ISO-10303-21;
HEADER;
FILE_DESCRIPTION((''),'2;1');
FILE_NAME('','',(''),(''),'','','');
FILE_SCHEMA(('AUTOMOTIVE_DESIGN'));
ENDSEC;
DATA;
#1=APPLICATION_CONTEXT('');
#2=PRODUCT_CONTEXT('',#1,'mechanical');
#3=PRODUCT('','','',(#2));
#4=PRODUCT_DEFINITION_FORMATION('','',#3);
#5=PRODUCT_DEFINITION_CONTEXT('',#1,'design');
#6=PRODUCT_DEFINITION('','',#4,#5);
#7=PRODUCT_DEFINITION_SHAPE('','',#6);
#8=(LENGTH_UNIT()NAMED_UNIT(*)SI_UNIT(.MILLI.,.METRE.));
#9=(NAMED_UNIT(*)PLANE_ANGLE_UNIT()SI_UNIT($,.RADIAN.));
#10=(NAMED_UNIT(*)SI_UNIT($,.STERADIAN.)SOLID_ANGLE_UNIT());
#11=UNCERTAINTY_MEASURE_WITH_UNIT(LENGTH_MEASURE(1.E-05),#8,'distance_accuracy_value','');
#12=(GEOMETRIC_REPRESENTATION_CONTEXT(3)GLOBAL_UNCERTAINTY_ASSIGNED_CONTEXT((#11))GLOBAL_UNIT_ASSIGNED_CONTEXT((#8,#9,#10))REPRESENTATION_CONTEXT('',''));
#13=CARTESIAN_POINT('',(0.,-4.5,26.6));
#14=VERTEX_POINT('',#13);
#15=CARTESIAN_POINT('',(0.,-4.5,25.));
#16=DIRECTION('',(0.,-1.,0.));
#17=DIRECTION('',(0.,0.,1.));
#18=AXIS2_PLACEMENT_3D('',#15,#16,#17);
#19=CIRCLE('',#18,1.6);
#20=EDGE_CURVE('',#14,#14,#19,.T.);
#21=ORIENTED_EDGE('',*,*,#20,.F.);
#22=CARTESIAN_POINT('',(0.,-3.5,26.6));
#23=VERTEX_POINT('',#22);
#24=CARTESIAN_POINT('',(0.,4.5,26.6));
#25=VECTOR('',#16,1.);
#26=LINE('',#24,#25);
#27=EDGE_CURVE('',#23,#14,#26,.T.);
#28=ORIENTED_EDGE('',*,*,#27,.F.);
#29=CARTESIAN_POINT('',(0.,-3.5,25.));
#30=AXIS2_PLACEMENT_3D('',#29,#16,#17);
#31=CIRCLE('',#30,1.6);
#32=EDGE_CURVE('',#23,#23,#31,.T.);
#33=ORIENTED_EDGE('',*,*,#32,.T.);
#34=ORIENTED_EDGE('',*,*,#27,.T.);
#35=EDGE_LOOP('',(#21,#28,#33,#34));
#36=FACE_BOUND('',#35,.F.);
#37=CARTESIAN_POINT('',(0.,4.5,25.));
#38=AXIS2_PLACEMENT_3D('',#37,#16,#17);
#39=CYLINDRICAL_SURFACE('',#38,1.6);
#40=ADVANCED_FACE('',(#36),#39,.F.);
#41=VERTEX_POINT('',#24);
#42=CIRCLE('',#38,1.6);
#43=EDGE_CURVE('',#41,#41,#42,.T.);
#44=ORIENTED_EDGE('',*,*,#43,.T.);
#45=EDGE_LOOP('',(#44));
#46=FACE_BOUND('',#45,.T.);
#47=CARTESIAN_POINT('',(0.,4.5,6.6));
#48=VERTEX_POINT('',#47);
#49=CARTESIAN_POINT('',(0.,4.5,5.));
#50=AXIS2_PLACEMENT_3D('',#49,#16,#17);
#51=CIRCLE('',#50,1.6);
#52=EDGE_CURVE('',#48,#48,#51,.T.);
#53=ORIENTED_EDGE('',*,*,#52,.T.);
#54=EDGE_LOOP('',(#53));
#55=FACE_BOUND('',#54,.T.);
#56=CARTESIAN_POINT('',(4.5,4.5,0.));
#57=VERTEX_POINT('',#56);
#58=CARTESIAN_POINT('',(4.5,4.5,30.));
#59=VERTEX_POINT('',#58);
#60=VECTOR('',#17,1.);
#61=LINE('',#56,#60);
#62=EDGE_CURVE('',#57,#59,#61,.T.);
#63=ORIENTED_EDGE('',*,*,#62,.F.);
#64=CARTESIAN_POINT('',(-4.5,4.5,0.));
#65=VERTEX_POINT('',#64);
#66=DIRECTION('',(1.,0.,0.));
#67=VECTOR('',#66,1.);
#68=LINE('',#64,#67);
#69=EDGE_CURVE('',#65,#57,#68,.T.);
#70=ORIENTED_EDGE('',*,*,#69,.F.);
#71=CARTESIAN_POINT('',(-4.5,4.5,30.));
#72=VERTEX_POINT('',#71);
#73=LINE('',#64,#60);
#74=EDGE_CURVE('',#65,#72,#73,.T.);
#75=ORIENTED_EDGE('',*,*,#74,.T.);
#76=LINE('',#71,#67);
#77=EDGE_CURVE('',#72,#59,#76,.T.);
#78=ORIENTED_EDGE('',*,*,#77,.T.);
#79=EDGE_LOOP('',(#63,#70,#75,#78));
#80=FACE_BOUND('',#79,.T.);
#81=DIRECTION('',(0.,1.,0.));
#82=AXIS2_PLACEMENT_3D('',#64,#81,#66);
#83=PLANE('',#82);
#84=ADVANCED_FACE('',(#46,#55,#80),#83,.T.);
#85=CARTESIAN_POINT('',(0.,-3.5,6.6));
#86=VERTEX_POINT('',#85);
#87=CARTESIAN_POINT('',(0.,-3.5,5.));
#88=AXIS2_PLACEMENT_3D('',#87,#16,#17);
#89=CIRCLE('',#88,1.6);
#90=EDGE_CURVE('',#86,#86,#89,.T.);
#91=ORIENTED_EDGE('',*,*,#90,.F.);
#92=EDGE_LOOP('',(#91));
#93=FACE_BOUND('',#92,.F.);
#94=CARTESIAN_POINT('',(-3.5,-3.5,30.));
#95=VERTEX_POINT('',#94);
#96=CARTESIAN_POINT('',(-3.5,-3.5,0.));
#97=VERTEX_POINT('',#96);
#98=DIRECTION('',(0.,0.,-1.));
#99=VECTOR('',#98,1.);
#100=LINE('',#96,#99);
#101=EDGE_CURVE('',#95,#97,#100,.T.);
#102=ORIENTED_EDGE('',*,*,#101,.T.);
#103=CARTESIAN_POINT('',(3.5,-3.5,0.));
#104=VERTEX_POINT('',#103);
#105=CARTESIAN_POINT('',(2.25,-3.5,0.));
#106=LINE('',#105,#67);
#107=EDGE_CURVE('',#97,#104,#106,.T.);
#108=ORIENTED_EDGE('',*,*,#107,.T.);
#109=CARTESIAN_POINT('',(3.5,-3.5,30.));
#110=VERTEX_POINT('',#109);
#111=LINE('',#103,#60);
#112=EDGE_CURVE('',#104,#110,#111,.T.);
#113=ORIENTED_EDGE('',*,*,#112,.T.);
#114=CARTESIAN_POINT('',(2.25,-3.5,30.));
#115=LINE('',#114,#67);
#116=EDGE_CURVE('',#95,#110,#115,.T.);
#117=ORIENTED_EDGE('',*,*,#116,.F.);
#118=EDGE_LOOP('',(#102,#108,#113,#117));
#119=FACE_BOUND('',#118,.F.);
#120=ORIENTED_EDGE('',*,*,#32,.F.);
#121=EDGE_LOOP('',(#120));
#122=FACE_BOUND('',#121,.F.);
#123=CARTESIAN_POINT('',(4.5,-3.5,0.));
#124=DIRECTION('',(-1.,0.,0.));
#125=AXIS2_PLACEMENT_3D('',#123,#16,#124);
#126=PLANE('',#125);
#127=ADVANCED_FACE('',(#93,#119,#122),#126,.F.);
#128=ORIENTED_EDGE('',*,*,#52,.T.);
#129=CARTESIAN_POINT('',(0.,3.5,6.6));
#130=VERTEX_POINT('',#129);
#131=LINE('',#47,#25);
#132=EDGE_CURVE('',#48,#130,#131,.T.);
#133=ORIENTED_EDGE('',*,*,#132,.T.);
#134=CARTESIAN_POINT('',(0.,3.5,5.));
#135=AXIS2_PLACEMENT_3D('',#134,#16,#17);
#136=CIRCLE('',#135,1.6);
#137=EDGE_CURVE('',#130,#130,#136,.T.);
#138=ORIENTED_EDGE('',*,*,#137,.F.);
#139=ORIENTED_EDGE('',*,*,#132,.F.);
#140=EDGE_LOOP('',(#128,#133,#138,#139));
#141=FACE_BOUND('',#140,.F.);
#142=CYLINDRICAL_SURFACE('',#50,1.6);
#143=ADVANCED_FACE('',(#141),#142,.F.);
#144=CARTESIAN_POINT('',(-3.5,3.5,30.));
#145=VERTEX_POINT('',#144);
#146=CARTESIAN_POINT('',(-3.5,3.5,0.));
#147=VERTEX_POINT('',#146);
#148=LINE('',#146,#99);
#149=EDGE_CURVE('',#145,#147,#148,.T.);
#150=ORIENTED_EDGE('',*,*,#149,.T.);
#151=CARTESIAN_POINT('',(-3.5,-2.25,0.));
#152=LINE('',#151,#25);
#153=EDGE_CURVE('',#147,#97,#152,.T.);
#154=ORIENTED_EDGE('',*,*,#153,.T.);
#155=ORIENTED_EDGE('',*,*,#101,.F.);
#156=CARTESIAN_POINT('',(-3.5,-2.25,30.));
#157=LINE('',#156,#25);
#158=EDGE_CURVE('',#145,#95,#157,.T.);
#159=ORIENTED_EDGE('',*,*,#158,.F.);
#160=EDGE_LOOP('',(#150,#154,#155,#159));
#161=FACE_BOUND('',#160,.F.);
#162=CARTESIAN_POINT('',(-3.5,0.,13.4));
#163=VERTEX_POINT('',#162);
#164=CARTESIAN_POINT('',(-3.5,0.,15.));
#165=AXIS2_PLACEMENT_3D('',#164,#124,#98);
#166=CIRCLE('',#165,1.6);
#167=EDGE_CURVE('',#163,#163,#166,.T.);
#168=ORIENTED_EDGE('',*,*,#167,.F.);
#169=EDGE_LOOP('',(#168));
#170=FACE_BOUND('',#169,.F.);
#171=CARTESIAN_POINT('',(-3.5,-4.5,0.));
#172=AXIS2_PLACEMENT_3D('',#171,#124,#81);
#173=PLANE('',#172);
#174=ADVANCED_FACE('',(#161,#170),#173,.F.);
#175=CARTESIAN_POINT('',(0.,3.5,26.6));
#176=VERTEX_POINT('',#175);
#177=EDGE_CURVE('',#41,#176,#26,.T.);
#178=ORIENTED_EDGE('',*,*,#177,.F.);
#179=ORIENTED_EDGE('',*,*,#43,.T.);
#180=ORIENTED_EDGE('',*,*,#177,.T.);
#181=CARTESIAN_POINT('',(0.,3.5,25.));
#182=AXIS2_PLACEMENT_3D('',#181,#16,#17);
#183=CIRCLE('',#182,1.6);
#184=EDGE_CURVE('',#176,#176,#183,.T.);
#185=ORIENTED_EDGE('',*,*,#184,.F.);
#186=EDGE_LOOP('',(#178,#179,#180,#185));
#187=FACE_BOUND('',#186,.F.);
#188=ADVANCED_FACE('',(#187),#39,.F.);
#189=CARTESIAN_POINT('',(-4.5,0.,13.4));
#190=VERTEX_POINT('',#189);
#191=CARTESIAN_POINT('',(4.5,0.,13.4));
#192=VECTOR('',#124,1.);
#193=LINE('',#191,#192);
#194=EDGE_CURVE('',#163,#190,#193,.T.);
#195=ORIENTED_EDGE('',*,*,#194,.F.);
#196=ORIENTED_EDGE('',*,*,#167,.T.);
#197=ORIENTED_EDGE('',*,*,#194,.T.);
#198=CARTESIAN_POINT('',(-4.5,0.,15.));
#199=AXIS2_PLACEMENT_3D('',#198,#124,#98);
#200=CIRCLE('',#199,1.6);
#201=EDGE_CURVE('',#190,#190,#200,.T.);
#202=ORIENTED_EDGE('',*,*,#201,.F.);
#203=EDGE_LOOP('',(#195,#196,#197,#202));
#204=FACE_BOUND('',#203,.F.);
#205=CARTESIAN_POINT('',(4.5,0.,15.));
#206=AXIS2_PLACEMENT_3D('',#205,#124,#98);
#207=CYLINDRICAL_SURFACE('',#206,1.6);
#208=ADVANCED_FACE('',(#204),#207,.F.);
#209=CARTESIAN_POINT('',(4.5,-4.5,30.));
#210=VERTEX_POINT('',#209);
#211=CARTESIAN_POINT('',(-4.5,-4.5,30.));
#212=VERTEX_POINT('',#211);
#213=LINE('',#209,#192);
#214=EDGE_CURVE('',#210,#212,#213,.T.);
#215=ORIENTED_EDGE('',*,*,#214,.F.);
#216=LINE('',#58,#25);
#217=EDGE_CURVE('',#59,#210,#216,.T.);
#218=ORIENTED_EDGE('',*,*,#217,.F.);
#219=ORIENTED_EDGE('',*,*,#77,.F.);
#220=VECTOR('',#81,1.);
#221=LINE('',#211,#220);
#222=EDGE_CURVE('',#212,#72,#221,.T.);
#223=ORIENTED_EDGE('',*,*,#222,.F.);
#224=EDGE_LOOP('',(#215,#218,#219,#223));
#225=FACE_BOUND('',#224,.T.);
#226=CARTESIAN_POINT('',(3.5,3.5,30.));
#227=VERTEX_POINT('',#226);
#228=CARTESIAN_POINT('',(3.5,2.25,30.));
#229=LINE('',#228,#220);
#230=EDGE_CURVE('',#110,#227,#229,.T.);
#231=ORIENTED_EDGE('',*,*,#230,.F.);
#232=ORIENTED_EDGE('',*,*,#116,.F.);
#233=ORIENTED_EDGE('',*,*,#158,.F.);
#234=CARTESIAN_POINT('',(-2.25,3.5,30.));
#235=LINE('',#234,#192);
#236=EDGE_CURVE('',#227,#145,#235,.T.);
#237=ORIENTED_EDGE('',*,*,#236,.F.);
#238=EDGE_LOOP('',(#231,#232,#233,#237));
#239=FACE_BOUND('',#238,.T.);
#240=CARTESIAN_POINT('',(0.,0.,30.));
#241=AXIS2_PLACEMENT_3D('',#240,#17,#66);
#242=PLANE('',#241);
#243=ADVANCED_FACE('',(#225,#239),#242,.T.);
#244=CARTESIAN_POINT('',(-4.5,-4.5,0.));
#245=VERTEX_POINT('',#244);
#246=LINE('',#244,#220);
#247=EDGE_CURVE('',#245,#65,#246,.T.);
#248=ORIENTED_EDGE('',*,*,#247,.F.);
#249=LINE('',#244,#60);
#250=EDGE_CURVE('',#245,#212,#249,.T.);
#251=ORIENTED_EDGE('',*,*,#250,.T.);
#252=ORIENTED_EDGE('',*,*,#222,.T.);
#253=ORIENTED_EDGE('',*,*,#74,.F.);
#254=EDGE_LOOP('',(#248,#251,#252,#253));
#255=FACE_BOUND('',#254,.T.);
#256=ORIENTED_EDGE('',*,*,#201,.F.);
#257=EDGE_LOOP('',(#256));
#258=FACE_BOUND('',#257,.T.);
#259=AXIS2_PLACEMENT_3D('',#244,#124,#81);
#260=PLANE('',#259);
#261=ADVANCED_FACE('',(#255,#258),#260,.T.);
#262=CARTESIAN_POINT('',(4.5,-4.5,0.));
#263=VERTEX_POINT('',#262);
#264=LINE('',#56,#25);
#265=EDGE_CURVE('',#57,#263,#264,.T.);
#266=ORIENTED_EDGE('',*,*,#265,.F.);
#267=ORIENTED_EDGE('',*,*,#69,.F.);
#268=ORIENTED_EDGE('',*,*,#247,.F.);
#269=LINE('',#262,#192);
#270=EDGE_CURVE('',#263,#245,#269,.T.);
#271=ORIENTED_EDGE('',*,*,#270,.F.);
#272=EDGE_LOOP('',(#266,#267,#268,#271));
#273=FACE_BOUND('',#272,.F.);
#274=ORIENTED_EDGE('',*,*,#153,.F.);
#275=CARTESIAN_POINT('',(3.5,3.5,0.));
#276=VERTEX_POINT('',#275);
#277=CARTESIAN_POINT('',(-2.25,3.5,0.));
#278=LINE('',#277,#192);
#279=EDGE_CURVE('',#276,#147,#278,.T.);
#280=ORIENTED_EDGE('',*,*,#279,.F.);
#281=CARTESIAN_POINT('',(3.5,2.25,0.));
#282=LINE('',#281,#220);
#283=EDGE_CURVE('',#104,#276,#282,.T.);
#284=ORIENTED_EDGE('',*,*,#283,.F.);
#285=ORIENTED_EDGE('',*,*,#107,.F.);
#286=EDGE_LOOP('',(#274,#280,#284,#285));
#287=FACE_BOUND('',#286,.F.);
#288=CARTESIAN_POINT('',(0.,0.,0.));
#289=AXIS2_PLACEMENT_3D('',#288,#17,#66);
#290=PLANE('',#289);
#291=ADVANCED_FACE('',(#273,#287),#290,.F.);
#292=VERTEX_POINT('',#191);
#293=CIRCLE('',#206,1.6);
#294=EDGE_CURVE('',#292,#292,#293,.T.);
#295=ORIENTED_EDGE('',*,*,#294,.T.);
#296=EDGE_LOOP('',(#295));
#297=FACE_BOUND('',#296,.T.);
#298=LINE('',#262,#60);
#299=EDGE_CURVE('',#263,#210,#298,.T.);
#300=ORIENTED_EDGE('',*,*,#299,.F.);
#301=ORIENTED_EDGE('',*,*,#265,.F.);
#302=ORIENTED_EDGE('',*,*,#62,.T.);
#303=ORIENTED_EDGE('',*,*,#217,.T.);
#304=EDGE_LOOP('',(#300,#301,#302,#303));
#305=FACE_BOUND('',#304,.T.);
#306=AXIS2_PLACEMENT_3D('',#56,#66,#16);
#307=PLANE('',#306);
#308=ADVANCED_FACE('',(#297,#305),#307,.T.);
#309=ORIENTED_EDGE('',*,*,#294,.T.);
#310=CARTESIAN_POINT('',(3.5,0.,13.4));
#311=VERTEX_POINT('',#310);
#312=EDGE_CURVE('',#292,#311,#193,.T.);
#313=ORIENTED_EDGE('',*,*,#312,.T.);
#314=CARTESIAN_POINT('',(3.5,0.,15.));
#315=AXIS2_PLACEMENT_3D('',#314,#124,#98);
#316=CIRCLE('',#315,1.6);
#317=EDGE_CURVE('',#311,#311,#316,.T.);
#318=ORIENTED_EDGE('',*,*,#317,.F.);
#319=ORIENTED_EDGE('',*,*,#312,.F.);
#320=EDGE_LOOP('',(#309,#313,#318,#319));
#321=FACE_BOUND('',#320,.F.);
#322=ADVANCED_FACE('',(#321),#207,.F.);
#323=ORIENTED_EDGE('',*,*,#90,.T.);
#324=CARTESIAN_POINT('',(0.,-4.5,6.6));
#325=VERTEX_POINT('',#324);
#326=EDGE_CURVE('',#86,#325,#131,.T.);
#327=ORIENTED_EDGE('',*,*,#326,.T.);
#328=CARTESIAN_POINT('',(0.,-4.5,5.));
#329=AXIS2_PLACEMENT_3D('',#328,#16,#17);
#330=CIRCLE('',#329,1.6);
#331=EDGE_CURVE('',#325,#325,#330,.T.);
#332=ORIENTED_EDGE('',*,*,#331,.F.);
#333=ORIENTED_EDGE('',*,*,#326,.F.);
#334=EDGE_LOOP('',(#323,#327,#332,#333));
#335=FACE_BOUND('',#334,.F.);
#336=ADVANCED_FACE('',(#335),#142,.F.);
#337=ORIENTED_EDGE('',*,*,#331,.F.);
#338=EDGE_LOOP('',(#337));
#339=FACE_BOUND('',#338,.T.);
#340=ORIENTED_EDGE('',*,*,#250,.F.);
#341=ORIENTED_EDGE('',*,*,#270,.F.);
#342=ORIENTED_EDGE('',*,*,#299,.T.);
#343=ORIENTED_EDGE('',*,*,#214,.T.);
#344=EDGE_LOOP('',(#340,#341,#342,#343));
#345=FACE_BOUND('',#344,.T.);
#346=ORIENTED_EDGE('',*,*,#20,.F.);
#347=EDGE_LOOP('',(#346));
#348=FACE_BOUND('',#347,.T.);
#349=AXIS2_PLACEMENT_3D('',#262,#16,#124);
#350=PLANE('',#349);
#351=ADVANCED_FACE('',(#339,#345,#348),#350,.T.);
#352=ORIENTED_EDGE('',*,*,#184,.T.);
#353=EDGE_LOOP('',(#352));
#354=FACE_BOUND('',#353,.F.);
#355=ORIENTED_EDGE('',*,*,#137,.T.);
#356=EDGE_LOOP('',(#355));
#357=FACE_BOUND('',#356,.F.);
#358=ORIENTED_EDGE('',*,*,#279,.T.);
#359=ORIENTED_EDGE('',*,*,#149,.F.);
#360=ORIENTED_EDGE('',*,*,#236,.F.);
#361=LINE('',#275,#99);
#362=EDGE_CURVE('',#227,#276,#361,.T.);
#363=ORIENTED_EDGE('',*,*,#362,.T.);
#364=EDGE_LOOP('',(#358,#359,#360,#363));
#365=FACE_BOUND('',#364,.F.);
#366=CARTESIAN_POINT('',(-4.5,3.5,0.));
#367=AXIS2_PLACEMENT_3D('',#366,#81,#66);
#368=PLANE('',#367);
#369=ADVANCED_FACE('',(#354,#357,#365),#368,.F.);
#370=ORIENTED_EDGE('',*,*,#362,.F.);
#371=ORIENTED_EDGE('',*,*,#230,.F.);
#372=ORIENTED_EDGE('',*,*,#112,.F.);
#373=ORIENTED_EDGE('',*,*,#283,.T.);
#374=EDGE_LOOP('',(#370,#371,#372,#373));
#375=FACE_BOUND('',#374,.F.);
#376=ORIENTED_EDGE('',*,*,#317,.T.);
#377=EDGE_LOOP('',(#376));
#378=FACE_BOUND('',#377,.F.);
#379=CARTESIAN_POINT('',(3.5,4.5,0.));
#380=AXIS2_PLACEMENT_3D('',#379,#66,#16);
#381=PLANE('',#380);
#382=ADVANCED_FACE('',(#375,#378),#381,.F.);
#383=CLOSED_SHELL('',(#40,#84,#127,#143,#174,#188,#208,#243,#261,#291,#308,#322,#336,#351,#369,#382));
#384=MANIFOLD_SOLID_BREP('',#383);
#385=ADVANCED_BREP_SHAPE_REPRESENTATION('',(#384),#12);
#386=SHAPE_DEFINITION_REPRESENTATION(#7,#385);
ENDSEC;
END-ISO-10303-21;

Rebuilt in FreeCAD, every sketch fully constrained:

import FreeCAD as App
import Part
import Sketcher


def faces_at(feature, points):
    """Names of the faces that lie closest to the given points."""
    faces = feature.Shape.Faces
    near = lambda p: min(range(len(faces)), key=lambda i: faces[i].distToShape(Part.Vertex(*p))[0])
    return sorted({f"Face{near(p) + 1}" for p in points})

doc = App.newDocument("Part")
body = doc.addObject("PartDesign::Body", "Body")

# Sketch on XY plane
sketch1 = body.newObject("Sketcher::SketchObject", "Sketch")
sketch1.AttachmentSupport = (doc.getObject("XY_Plane"), [""])
sketch1.MapMode = "FlatFace"
sketch1.addGeometry(Part.LineSegment(App.Vector(-4, -4, 0), App.Vector(4, -4, 0)), False)
sketch1.addGeometry(Part.LineSegment(App.Vector(4, -4, 0), App.Vector(4, 4, 0)), False)
sketch1.addGeometry(Part.LineSegment(App.Vector(4, 4, 0), App.Vector(-4, 4, 0)), False)
sketch1.addGeometry(Part.LineSegment(App.Vector(-4, 4, 0), App.Vector(-4, -4, 0)), False)
sketch1.addConstraint(Sketcher.Constraint("Coincident", 0, 2, 1, 1))
sketch1.addConstraint(Sketcher.Constraint("Coincident", 1, 2, 2, 1))
sketch1.addConstraint(Sketcher.Constraint("Coincident", 2, 2, 3, 1))
sketch1.addConstraint(Sketcher.Constraint("Coincident", 3, 2, 0, 1))
sketch1.addConstraint(Sketcher.Constraint("Horizontal", 0))
sketch1.addConstraint(Sketcher.Constraint("Vertical", 1))
sketch1.addConstraint(Sketcher.Constraint("Horizontal", 2))
sketch1.addConstraint(Sketcher.Constraint("Vertical", 3))
sketch1.addConstraint(Sketcher.Constraint("Symmetric", 0, 2, 2, 2, -1, 1))
sketch1.addConstraint(Sketcher.Constraint("Equal", 2, 1))
sketch1.addConstraint(Sketcher.Constraint("DistanceX", 0, 1, 0, 2, 9.0))
pad1 = body.newObject("PartDesign::Pad", "Pad")
pad1.Profile = sketch1
pad1.Length = 30
doc.recompute()

thickness = body.newObject("PartDesign::Thickness", "Thickness")
thickness.Base = (pad1, faces_at(pad1, [(1.5, -1.5, 0), (1.5, -1.5, 30)]))
thickness.Value = 1
thickness.Reversed = True
thickness.Join = "Intersection"

# Sketch on XZ plane
sketch2 = body.newObject("Sketcher::SketchObject", "Sketch001")
sketch2.AttachmentSupport = (doc.getObject("XZ_Plane"), [""])
sketch2.MapMode = "FlatFace"
sketch2.AttachmentOffset = App.Placement(App.Vector(0, 0, -4.5), App.Rotation())
sketch2.addGeometry(Part.Circle(App.Vector(0, 5, 0), App.Vector(0, 0, 1), 1.6), False)
sketch2.addGeometry(Part.Circle(App.Vector(0, 25, 0), App.Vector(0, 0, 1), 1.6), False)
sketch2.addConstraint(Sketcher.Constraint("Equal", 0, 1))
sketch2.addConstraint(Sketcher.Constraint("PointOnObject", 0, 3, -2))
sketch2.addConstraint(Sketcher.Constraint("PointOnObject", 1, 3, -2))
sketch2.addConstraint(Sketcher.Constraint("Diameter", 0, 3.2))
sketch2.addConstraint(Sketcher.Constraint("DistanceY", -1, 1, 0, 3, 5.0))
sketch2.addConstraint(Sketcher.Constraint("DistanceY", -1, 1, 1, 3, 25.0))
doc.recompute()
hole = body.newObject("PartDesign::Hole", "Hole")
hole.Profile = sketch2
hole.ThreadType = "None"
hole.Diameter = 3.2
hole.DepthType = "ThroughAll"
hole.Reversed = True

# Sketch on YZ plane
sketch3 = body.newObject("Sketcher::SketchObject", "Sketch002")
sketch3.AttachmentSupport = (doc.getObject("YZ_Plane"), [""])
sketch3.MapMode = "FlatFace"
sketch3.AttachmentOffset = App.Placement(App.Vector(0, 0, 4.5), App.Rotation())
sketch3.addGeometry(Part.Circle(App.Vector(0, 15, 0), App.Vector(0, 0, 1), 1.6), False)
sketch3.addConstraint(Sketcher.Constraint("PointOnObject", 0, 3, -2))
sketch3.addConstraint(Sketcher.Constraint("Diameter", 0, 3.2))
sketch3.addConstraint(Sketcher.Constraint("DistanceY", -1, 1, 0, 3, 15.0))
doc.recompute()
hole2 = body.newObject("PartDesign::Hole", "Hole001")
hole2.Profile = sketch3
hole2.ThreadType = "None"
hole2.Diameter = 3.2
hole2.DepthType = "ThroughAll"

doc.recompute()
